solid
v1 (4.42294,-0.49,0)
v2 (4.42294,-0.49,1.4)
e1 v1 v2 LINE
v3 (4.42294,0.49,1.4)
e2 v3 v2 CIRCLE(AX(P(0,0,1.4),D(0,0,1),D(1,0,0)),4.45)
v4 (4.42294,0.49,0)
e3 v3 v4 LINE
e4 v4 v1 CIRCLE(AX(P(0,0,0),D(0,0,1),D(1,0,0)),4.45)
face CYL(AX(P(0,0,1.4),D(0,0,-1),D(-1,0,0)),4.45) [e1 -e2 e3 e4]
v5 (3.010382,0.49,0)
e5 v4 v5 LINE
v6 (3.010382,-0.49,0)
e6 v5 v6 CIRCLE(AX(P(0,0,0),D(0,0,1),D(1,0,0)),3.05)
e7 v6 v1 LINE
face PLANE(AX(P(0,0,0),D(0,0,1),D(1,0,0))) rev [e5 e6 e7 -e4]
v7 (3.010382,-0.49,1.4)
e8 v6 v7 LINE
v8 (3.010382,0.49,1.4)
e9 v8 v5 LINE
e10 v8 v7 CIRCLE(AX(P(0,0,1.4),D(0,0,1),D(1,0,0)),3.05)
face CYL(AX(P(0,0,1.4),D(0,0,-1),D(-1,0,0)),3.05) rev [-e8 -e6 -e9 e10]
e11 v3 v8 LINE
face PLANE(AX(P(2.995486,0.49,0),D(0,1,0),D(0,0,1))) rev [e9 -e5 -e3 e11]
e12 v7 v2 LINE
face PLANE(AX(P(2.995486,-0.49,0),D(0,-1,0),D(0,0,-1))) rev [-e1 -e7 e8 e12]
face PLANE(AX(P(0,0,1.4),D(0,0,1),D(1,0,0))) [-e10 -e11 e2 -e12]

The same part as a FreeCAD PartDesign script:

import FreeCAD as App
import Part
import Sketcher
from FreeCAD import Vector

doc = App.newDocument("Part")
body = doc.addObject("PartDesign::Body", "Body")

# Sketch on XY plane
sketch1 = doc.addObject("Sketcher::SketchObject", "Sketch")
body.addObject(sketch1)
sketch1.AttachmentSupport = (doc.XY_Plane, [""])
sketch1.MapMode = "FlatFace"
sketch1.addGeometry([
    Part.Circle(Vector(0, 0, 0), Vector(0, 0, 1), 4.5),
    Part.Circle(Vector(0, 0, 0), Vector(0, 0, 1), 3),
], False)
sketch1.addConstraint([
    Sketcher.Constraint("Coincident", 0, 3, -1, 1),
    Sketcher.Constraint("Coincident", 1, 3, -1, 1),
    Sketcher.Constraint("Diameter", 0, 8.9),
    Sketcher.Constraint("Diameter", 1, 6.1),
])
pad1 = doc.addObject("PartDesign::Pad", "Pad")
body.addObject(pad1)
pad1.Profile = sketch1
pad1.Length = 1.4

# Sketch on XY plane
sketch2 = doc.addObject("Sketcher::SketchObject", "Sketch001")
body.addObject(sketch2)
sketch2.AttachmentSupport = (doc.XY_Plane, [""])
sketch2.MapMode = "FlatFace"
sketch2.AttachmentOffset = App.Placement(Vector(0, 0, 1.4), App.Rotation())
sketch2.addGeometry([
    Part.LineSegment(Vector(3, 0.5, 0), Vector(3, -0.5, 0)),
    Part.LineSegment(Vector(3, -0.5, 0), Vector(4.5, -0.5, 0)),
    Part.LineSegment(Vector(4.5, -0.5, 0), Vector(4.5, 0.5, 0)),
    Part.LineSegment(Vector(4.5, 0.5, 0), Vector(3, 0.5, 0)),
], False)
sketch2.addConstraint([
    Sketcher.Constraint("Coincident", 0, 2, 1, 1),
    Sketcher.Constraint("Coincident", 1, 2, 2, 1),
    Sketcher.Constraint("Coincident", 2, 2, 3, 1),
    Sketcher.Constraint("Coincident", 3, 2, 0, 1),
    Sketcher.Constraint("Vertical", 0),
    Sketcher.Constraint("Horizontal", 1),
    Sketcher.Constraint("Vertical", 2),
    Sketcher.Constraint("Horizontal", 3),
    Sketcher.Constraint("DistanceY", 0, 2, 0, 1, 0.98),
    Sketcher.Constraint("DistanceY", 0, 2, -1, 1, 0.49),
    Sketcher.Constraint("DistanceX", 1, 1, 1, 2, 1.528828),
    Sketcher.Constraint("DistanceX", -1, 1, 0, 2, 2.995486),
])
pocket1 = doc.addObject("PartDesign::Pocket", "Pocket")
body.addObject(pocket1)
pocket1.Profile = sketch2
pocket1.Type = "ThroughAll"

doc.recompute()
